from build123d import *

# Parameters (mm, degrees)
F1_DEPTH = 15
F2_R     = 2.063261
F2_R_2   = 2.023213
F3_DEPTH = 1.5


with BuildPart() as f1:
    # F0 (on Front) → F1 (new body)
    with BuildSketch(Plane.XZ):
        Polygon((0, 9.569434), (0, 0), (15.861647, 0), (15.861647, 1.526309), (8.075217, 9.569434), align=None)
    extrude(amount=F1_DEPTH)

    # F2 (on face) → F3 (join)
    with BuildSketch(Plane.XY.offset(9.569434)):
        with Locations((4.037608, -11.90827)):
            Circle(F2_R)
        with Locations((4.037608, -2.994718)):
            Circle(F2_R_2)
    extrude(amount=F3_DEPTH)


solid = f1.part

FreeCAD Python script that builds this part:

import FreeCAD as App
import Part
import Sketcher
from FreeCAD import Vector


def add_polygon(sketch, points):
    """Adds a closed chain of lines whose ends are joined by coincident constraints."""
    first, n = sketch.GeometryCount, len(points)
    for a, b in zip(points, points[1:] + points[:1]):
        sketch.addGeometry(Part.LineSegment(App.Vector(*a, 0), App.Vector(*b, 0)), False)
    for i in range(n):
        sketch.addConstraint(Sketcher.Constraint("Coincident", first + i, 2, first + (i + 1) % n, 1))

doc = App.newDocument("Part")
body = doc.addObject("PartDesign::Body", "Body")

# Sketch on XZ plane
sketch1 = body.newObject("Sketcher::SketchObject", "Sketch")
sketch1.AttachmentSupport = (doc.getObject("XZ_Plane"), [""])
sketch1.MapMode = "FlatFace"
add_polygon(sketch1, [(0, 9.569434), (0, 0), (15.861647, 0), (15.861647, 1.526309), (8.075217, 9.569434)])  # lines 0-4
sketch1.addConstraint(Sketcher.Constraint("Vertical", 0))
sketch1.addConstraint(Sketcher.Constraint("Horizontal", 1))
sketch1.addConstraint(Sketcher.Constraint("Vertical", 2))
sketch1.addConstraint(Sketcher.Constraint("Horizontal", 4))
sketch1.addConstraint(Sketcher.Constraint("Coincident", 0, 2, -1, 1))
sketch1.addConstraint(Sketcher.Constraint("DistanceY", 2, 1, 2, 2, 1.526309))
sketch1.addConstraint(Sketcher.Constraint("DistanceX", 1, 1, 1, 2, 15.861647))
sketch1.addConstraint(Sketcher.Constraint("DistanceX", 4, 2, 4, 1, 8.075217))
sketch1.addConstraint(Sketcher.Constraint("DistanceY", 0, 2, 0, 1, 9.569434))
pad1 = body.newObject("PartDesign::Pad", "Pad")
pad1.Profile = sketch1
pad1.Length = 15

# Sketch on XY plane
sketch2 = body.newObject("Sketcher::SketchObject", "Sketch001")
sketch2.AttachmentSupport = (doc.getObject("XY_Plane"), [""])
sketch2.MapMode = "FlatFace"
sketch2.AttachmentOffset = App.Placement(Vector(0, 0, 9.569434), App.Rotation())
sketch2.addGeometry(Part.Circle(Vector(4.037608, -11.90827, 0), Vector(0, 0, 1), 2.063261), False)
sketch2.addGeometry(Part.Circle(Vector(4.037608, -2.994718, 0), Vector(0, 0, 1), 2.023213), False)
sketch2.addConstraint(Sketcher.Constraint("Vertical", 0, 3, 1, 3))
sketch2.addConstraint(Sketcher.Constraint("Diameter", 0, 4.126522))
sketch2.addConstraint(Sketcher.Constraint("Diameter", 1, 4.046426))
sketch2.addConstraint(Sketcher.Constraint("DistanceY", 0, 3, -1, 1, 11.90827))
sketch2.addConstraint(Sketcher.Constraint("DistanceY", 1, 3, -1, 1, 2.994718))
sketch2.addConstraint(Sketcher.Constraint("DistanceX", -1, 1, 0, 3, 4.037608))
pad2 = body.newObject("PartDesign::Pad", "Pad001")
pad2.Profile = sketch2
pad2.Length = 1.5

doc.recompute()
